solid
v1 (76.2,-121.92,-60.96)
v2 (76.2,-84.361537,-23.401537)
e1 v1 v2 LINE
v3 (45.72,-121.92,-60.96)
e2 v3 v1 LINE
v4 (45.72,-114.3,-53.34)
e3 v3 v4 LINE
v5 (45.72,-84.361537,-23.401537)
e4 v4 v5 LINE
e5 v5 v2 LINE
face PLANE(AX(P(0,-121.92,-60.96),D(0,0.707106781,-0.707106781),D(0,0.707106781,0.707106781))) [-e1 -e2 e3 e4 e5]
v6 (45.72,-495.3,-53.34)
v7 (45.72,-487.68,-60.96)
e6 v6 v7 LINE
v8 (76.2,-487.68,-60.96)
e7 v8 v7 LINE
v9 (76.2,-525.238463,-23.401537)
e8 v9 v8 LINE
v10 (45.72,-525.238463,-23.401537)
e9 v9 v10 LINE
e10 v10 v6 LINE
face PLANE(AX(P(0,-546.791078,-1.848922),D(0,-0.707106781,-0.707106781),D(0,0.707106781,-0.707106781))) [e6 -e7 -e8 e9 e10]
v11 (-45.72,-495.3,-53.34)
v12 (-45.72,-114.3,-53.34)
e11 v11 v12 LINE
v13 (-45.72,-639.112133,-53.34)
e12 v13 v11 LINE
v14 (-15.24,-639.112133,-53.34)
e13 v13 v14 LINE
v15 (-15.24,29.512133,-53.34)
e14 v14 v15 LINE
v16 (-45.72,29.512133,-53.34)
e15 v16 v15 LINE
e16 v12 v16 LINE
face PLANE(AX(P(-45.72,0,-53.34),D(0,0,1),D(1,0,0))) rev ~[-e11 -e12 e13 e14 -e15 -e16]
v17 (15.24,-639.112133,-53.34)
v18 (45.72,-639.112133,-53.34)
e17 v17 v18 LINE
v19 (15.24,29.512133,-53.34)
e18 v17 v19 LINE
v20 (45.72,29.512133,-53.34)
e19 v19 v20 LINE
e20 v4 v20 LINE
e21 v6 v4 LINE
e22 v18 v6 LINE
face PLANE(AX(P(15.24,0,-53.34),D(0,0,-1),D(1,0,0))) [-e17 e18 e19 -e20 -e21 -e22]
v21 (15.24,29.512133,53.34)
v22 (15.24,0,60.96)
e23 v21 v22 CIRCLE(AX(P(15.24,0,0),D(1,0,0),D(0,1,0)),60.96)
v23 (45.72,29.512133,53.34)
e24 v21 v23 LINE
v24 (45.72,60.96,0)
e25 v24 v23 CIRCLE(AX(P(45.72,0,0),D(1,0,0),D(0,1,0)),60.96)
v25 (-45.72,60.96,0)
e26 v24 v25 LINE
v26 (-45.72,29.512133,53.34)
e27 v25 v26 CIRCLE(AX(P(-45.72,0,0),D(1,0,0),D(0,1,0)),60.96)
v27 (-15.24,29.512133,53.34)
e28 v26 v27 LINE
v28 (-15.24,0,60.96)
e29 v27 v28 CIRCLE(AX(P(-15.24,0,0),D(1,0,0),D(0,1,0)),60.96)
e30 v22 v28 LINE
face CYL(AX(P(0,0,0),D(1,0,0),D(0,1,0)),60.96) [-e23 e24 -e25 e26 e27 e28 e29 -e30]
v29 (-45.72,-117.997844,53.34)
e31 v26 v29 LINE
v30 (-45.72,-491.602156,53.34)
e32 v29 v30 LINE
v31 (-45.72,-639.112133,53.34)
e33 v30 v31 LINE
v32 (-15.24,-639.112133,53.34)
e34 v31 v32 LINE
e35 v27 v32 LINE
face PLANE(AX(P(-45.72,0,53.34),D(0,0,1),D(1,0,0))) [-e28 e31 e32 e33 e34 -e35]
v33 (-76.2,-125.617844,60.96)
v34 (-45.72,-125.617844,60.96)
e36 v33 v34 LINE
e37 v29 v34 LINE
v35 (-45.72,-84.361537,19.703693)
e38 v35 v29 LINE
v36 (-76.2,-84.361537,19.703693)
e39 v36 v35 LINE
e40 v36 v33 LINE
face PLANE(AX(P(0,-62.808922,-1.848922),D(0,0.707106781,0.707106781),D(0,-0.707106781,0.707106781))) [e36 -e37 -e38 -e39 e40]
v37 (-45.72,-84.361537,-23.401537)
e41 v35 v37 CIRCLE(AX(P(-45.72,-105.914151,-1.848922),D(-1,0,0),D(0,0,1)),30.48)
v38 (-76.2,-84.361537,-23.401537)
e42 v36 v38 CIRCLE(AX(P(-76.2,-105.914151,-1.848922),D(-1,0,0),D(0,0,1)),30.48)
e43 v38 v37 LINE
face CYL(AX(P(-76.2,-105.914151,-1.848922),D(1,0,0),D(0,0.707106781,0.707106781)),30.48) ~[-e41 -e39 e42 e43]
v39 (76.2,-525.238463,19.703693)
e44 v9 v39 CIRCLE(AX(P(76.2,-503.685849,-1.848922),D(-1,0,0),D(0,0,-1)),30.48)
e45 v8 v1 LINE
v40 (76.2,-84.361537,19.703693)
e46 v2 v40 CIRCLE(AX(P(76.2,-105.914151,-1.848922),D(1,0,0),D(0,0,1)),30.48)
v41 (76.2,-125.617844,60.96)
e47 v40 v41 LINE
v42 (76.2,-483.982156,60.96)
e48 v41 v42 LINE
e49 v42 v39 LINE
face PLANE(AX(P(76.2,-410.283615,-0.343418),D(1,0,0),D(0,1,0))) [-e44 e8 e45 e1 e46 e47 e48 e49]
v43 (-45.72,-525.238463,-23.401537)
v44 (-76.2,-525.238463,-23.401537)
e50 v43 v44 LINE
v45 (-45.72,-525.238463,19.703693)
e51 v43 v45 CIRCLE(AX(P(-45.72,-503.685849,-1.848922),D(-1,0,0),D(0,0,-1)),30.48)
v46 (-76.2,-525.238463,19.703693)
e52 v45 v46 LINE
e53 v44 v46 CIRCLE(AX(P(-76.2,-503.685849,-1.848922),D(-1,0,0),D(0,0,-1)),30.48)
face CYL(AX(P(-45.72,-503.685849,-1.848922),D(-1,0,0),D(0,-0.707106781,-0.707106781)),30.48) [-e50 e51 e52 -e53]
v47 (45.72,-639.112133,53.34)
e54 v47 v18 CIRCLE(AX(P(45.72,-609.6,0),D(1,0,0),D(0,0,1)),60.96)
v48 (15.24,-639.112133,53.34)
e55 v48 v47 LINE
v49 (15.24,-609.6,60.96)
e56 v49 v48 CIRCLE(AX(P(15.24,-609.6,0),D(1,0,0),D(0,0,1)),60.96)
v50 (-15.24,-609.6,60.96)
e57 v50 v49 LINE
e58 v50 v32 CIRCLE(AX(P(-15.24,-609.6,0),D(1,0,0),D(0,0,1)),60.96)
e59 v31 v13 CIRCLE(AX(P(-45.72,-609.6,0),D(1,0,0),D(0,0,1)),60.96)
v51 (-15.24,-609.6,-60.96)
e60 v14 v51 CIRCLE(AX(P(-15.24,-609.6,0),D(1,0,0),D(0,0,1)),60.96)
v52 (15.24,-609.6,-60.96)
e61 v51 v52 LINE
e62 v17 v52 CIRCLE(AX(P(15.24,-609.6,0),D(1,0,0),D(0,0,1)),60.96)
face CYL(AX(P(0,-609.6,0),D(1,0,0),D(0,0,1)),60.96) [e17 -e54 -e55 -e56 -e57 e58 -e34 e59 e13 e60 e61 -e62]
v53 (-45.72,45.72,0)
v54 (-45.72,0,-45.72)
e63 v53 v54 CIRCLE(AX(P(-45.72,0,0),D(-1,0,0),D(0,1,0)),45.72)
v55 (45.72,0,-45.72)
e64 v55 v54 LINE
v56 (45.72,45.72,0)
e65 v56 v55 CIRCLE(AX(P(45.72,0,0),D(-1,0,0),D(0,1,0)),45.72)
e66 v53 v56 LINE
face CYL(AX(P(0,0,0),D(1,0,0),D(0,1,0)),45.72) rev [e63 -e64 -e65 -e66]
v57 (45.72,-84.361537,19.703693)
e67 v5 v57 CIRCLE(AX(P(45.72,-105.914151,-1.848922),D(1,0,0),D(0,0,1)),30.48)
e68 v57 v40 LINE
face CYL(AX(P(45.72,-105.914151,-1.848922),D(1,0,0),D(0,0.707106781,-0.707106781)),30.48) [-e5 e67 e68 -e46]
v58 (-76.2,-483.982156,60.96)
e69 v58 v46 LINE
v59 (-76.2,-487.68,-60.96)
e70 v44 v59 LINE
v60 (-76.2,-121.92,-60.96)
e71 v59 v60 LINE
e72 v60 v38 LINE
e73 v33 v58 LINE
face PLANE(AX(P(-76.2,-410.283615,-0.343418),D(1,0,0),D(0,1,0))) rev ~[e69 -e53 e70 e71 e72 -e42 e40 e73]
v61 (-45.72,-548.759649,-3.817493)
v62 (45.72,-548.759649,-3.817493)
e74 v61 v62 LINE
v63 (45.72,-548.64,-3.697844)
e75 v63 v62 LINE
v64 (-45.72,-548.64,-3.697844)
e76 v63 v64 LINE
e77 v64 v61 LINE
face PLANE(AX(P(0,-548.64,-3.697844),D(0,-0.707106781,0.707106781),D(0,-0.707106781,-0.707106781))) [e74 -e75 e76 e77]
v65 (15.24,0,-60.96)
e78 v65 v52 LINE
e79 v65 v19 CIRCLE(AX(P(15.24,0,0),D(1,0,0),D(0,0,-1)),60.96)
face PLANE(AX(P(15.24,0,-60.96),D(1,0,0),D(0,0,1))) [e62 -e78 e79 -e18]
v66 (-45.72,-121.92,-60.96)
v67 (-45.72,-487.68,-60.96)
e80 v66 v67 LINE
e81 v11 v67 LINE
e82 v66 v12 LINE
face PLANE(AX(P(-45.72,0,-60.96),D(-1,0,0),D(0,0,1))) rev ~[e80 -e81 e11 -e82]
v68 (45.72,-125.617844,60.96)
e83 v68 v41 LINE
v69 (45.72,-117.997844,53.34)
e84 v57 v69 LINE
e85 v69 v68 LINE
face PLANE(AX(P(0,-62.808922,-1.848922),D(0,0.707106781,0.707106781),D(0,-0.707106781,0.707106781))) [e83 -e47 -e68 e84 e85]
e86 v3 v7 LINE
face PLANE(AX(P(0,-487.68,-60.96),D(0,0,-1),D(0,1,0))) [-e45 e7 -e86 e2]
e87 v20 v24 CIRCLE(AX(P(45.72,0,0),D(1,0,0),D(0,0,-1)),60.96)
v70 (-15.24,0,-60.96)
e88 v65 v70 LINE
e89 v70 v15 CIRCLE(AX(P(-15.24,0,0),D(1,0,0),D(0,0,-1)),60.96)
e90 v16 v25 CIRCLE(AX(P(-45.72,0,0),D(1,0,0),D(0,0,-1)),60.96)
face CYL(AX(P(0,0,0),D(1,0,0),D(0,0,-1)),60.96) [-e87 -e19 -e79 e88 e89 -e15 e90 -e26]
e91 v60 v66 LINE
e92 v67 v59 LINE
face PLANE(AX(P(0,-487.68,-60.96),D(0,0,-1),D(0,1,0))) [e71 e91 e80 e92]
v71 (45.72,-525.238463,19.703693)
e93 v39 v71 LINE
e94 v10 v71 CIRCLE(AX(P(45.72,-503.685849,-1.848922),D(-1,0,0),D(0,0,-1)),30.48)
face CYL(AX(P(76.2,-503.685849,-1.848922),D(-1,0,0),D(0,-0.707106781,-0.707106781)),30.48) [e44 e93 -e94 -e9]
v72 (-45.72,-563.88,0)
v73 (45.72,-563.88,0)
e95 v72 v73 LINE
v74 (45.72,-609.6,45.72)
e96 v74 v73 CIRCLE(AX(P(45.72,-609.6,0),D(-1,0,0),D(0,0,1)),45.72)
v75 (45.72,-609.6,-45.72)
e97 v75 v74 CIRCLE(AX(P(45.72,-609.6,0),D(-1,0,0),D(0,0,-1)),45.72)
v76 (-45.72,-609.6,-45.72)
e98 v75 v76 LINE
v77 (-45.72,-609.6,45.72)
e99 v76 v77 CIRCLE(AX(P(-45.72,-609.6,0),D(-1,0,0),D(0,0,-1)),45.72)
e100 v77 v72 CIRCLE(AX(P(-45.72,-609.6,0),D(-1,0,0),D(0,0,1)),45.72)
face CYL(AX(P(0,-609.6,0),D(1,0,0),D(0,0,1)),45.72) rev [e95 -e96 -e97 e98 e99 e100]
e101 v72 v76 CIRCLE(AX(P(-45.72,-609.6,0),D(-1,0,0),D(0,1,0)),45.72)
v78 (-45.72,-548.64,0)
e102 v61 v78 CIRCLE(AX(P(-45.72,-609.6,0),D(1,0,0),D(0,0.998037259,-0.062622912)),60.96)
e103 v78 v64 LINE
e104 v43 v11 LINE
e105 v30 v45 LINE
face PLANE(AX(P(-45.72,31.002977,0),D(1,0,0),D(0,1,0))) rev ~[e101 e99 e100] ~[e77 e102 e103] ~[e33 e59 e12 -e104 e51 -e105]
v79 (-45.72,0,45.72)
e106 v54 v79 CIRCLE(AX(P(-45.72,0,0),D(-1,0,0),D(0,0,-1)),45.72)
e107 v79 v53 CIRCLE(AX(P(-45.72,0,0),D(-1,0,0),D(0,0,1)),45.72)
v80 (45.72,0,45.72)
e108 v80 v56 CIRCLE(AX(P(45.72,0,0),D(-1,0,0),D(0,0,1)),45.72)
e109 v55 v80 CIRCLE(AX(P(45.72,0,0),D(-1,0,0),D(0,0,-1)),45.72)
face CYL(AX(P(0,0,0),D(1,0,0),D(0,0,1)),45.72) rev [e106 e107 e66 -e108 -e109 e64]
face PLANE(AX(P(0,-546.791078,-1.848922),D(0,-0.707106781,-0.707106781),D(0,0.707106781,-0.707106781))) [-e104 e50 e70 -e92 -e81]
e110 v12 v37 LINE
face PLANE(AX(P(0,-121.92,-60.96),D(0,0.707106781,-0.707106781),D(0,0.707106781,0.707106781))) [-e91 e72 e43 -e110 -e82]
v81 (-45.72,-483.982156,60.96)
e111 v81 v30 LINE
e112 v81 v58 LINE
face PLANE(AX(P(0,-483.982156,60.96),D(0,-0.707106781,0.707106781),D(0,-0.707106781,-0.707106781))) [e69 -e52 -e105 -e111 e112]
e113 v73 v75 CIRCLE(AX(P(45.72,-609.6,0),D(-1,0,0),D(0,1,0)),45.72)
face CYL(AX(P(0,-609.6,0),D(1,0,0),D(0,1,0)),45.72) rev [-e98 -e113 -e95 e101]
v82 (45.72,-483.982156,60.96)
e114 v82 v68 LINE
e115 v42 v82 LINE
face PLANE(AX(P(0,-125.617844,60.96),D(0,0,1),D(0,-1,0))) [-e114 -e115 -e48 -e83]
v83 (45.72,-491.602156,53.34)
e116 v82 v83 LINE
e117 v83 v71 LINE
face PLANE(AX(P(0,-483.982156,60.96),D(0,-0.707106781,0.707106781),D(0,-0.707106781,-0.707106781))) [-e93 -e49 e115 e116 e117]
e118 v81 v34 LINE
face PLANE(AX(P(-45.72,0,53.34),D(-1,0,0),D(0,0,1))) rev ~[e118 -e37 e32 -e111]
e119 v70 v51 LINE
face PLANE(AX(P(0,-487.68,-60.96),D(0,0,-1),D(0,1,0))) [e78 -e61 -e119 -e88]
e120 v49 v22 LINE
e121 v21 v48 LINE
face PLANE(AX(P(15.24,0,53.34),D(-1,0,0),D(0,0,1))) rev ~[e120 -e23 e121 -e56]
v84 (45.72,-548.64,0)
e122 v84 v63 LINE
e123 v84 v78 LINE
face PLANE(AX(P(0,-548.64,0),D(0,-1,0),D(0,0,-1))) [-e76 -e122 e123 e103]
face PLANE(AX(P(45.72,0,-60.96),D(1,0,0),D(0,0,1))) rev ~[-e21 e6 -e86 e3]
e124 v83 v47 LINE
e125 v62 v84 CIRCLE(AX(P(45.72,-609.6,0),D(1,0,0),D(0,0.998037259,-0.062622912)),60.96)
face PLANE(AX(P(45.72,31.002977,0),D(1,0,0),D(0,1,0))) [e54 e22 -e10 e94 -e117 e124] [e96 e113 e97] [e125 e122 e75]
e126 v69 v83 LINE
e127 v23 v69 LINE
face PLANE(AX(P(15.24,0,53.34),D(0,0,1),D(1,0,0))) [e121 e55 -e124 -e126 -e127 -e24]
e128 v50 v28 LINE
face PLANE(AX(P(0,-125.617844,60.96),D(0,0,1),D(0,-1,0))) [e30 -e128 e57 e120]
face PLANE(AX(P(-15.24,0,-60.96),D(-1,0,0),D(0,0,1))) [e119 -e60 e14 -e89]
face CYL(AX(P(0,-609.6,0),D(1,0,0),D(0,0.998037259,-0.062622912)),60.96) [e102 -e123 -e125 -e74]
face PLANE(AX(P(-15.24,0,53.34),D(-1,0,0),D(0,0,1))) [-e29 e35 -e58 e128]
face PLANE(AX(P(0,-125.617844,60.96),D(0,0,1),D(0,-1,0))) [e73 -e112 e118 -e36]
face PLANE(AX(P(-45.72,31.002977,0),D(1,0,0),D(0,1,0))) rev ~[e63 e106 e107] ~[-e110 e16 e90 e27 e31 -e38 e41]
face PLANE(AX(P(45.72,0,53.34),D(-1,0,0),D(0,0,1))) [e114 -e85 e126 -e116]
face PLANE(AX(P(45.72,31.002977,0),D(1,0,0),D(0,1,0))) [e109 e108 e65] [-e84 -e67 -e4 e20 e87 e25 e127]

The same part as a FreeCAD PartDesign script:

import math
import FreeCAD as App
import Part
import Sketcher
from FreeCAD import Vector
Q = App.Units.Quantity


def edges_at(feature, points):
    """Names of the edges that pass closest to the given points."""
    edges = feature.Shape.Edges
    near = lambda p: min(range(len(edges)), key=lambda i: edges[i].distToShape(Part.Vertex(*p))[0])
    return sorted({f"Edge{near(p) + 1}" for p in points})


def add_polygon(sketch, points):
    """Adds a closed chain of lines whose ends are joined by coincident constraints."""
    first, n = sketch.GeometryCount, len(points)
    for a, b in zip(points, points[1:] + points[:1]):
        sketch.addGeometry(Part.LineSegment(App.Vector(*a, 0), App.Vector(*b, 0)), False)
    for i in range(n):
        sketch.addConstraint(Sketcher.Constraint("Coincident", first + i, 2, first + (i + 1) % n, 1))

doc = App.newDocument("Part")
body = doc.addObject("PartDesign::Body", "Body")

# Sketch on YZ plane
sketch1 = doc.addObject("Sketcher::SketchObject", "Sketch")
body.addObject(sketch1)
sketch1.AttachmentSupport = (doc.YZ_Plane, [""])
sketch1.MapMode = "FlatFace"
sketch1.addGeometry(Part.LineSegment(Vector(0, 60.96, 0), Vector(-609.6, 60.96, 0)), False)
sketch1.addGeometry(Part.ArcOfCircle(Part.Circle(Vector(-609.6, 0, 0), Vector(0, 0, 1), 60.96), math.radians(90), math.radians(270)), False)
sketch1.addGeometry(Part.LineSegment(Vector(-609.6, -60.96, 0), Vector(0, -60.96, 0)), False)
sketch1.addGeometry(Part.ArcOfCircle(Part.Circle(Vector(0, 0, 0), Vector(0, 0, 1), 60.96), math.radians(-90), math.radians(0)), False)
sketch1.addGeometry(Part.ArcOfCircle(Part.Circle(Vector(0, 0, 0), Vector(0, 0, 1), 60.96), math.radians(0), math.radians(90)), False)
sketch1.addGeometry(Part.ArcOfCircle(Part.Circle(Vector(-609.6, 0, 0), Vector(0, 0, 1), 45.72), math.radians(0), math.radians(90)), False)
sketch1.addGeometry(Part.ArcOfCircle(Part.Circle(Vector(-609.6, 0, 0), Vector(0, 0, 1), 45.72), math.radians(-90), math.radians(0)), False)
sketch1.addGeometry(Part.ArcOfCircle(Part.Circle(Vector(-609.6, 0, 0), Vector(0, 0, 1), 45.72), math.radians(90), math.radians(270)), False)
sketch1.addGeometry(Part.LineSegment(Vector(-548.64, -3.697844, 0), Vector(-548.759649, -3.817493, 0)), False)
sketch1.addGeometry(Part.ArcOfCircle(Part.Circle(Vector(-609.6, 0, 0), Vector(0, 0, 1), 60.96), math.radians(-3.590378), math.radians(0)), False)
sketch1.addGeometry(Part.LineSegment(Vector(-548.64, 0, 0), Vector(-548.64, -3.697844, 0)), False)
sketch1.addGeometry(Part.ArcOfCircle(Part.Circle(Vector(0, 0, 0), Vector(0, 0, 1), 45.72), math.radians(0), math.radians(90)), False)
sketch1.addGeometry(Part.ArcOfCircle(Part.Circle(Vector(0, 0, 0), Vector(0, 0, 1), 45.72), math.radians(-90), math.radians(0)), False)
sketch1.addGeometry(Part.ArcOfCircle(Part.Circle(Vector(0, 0, 0), Vector(0, 0, 1), 45.72), math.radians(90), math.radians(270)), False)
sketch1.addConstraint(Sketcher.Constraint("Tangent", 0, 2, 1, 1))
sketch1.addConstraint(Sketcher.Constraint("Tangent", 1, 2, 2, 1))
sketch1.addConstraint(Sketcher.Constraint("Tangent", 2, 2, 3, 1))
sketch1.addConstraint(Sketcher.Constraint("Tangent", 3, 2, 4, 1))
sketch1.addConstraint(Sketcher.Constraint("Tangent", 4, 2, 0, 1))
sketch1.addConstraint(Sketcher.Constraint("Tangent", 5, 1, 6, 2))
sketch1.addConstraint(Sketcher.Constraint("Tangent", 6, 1, 7, 2))
sketch1.addConstraint(Sketcher.Constraint("Tangent", 7, 1, 5, 2))
sketch1.addConstraint(Sketcher.Constraint("Coincident", 8, 2, 9, 1))
sketch1.addConstraint(Sketcher.Constraint("Tangent", 9, 2, 10, 1))
sketch1.addConstraint(Sketcher.Constraint("Coincident", 10, 2, 8, 1))
sketch1.addConstraint(Sketcher.Constraint("Tangent", 11, 1, 12, 2))
sketch1.addConstraint(Sketcher.Constraint("Tangent", 12, 1, 13, 2))
sketch1.addConstraint(Sketcher.Constraint("Tangent", 13, 1, 11, 2))
sketch1.addConstraint(Sketcher.Constraint("Horizontal", 0))
sketch1.addConstraint(Sketcher.Constraint("Horizontal", 2))
sketch1.addConstraint(Sketcher.Constraint("Vertical", 10))
sketch1.addConstraint(Sketcher.Constraint("Coincident", 3, 3, -1, 1))
sketch1.addConstraint(Sketcher.Constraint("Coincident", 11, 3, -1, 1))
sketch1.addConstraint(Sketcher.Constraint("Coincident", 5, 3, 1, 3))
sketch1.addConstraint(Sketcher.Constraint("Coincident", 9, 3, 1, 3))
sketch1.addConstraint(Sketcher.Constraint("Equal", 1, 3))
sketch1.addConstraint(Sketcher.Constraint("Equal", 4, 9))
sketch1.addConstraint(Sketcher.Constraint("Equal", 7, 11))
sketch1.addConstraint(Sketcher.Constraint("PointOnObject", 3, 2, -1))
sketch1.addConstraint(Sketcher.Constraint("PointOnObject", 5, 1, -1))
sketch1.addConstraint(Sketcher.Constraint("PointOnObject", 11, 1, -1))
sketch1.addConstraint(Sketcher.Constraint("PointOnObject", 12, 1, -2))
sketch1.addConstraint(Sketcher.Constraint("PointOnObject", 13, 1, -2))
sketch1.addConstraint(Sketcher.Constraint("Vertical", 1, 2, 6, 1))
sketch1.addConstraint(Sketcher.Constraint("Vertical", 6, 1, 7, 1))
sketch1.addConstraint(Sketcher.Constraint("Radius", 1, Q("2.4 in")))
sketch1.addConstraint(Sketcher.Constraint("Radius", 5, Q("1.8 in")))
sketch1.addConstraint(Sketcher.Constraint("DistanceX", 0, 2, 0, 1, Q("24 in")))
sketch1.addConstraint(Sketcher.Constraint("Angle", 8, Q("-135 deg")))
sketch1.addConstraint(Sketcher.Constraint("Distance", 8, 0.169209))
pad1 = doc.addObject("PartDesign::Pad", "Pad")
body.addObject(pad1)
pad1.Profile = sketch1
pad1.Length = Q("3.6 in")
pad1.Midplane = True

# Sketch on YZ plane
sketch2 = doc.addObject("Sketcher::SketchObject", "Sketch001")
body.addObject(sketch2)
sketch2.AttachmentSupport = (doc.YZ_Plane, [""])
sketch2.MapMode = "FlatFace"
add_polygon(sketch2, [(-487.68, -60.96), (-121.92, -60.96), (-62.808922, -1.848922), (-125.617844, 60.96), (-483.982156, 60.96), (-546.791078, -1.848922)])  # lines 0-5
sketch2.addConstraint(Sketcher.Constraint("Horizontal", 0))
sketch2.addConstraint(Sketcher.Constraint("Horizontal", 3))
sketch2.addConstraint(Sketcher.Constraint("Perpendicular", 1, 2))
sketch2.addConstraint(Sketcher.Constraint("Perpendicular", 2, 4))
sketch2.addConstraint(Sketcher.Constraint("Perpendicular", 4, 5))
sketch2.addConstraint(Sketcher.Constraint("Horizontal", 1, 2, 4, 2))
sketch2.addConstraint(Sketcher.Constraint("Equal", 2, 4))
sketch2.addConstraint(Sketcher.Constraint("DistanceX", 0, 1, 0, 2, Q("14.4 in")))
sketch2.addConstraint(Sketcher.Constraint("DistanceX", 0, 2, -1, 1, Q("4.8 in")))
sketch2.addConstraint(Sketcher.Constraint("DistanceY", 0, 2, -1, 1, Q("2.4 in")))
sketch2.addConstraint(Sketcher.Constraint("DistanceY", -1, 1, 2, 2, Q("2.4 in")))
sketch2.addConstraint(Sketcher.Constraint("DistanceX", 3, 2, 3, 1, 358.364312))
pad2 = doc.addObject("PartDesign::Pad", "Pad001")
body.addObject(pad2)
pad2.Profile = sketch2
pad2.Length = Q("6 in")
pad2.Midplane = True

# Sketch on XZ plane
sketch3 = doc.addObject("Sketcher::SketchObject", "Sketch002")
body.addObject(sketch3)
sketch3.AttachmentSupport = (doc.XZ_Plane, [""])
sketch3.MapMode = "FlatFace"
add_polygon(sketch3, [(-45.72, 60.96), (-45.72, 53.34), (-15.24, 53.34), (-15.24, 60.96)])  # lines 0-3
add_polygon(sketch3, [(15.24, 60.96), (15.24, 53.34), (45.72, 53.34), (45.72, 60.96)])  # lines 4-7
add_polygon(sketch3, [(-45.72, -53.34), (-45.72, -60.96), (-15.24, -60.96), (-15.24, -53.34)])  # lines 8-11
add_polygon(sketch3, [(15.24, -53.34), (15.24, -60.96), (45.72, -60.96), (45.72, -53.34)])  # lines 12-15
sketch3.addConstraint(Sketcher.Constraint("Vertical", 0))
sketch3.addConstraint(Sketcher.Constraint("Horizontal", 1))
sketch3.addConstraint(Sketcher.Constraint("Vertical", 2))
sketch3.addConstraint(Sketcher.Constraint("Horizontal", 3))
sketch3.addConstraint(Sketcher.Constraint("Vertical", 4))
sketch3.addConstraint(Sketcher.Constraint("Horizontal", 5))
sketch3.addConstraint(Sketcher.Constraint("Vertical", 6))
sketch3.addConstraint(Sketcher.Constraint("Horizontal", 7))
sketch3.addConstraint(Sketcher.Constraint("Vertical", 8))
sketch3.addConstraint(Sketcher.Constraint("Horizontal", 9))
sketch3.addConstraint(Sketcher.Constraint("Vertical", 10))
sketch3.addConstraint(Sketcher.Constraint("Horizontal", 11))
sketch3.addConstraint(Sketcher.Constraint("Vertical", 12))
sketch3.addConstraint(Sketcher.Constraint("Horizontal", 13))
sketch3.addConstraint(Sketcher.Constraint("Vertical", 14))
sketch3.addConstraint(Sketcher.Constraint("Horizontal", 15))
sketch3.addConstraint(Sketcher.Constraint("Symmetric", 6, 2, 8, 2, -1, 1))
sketch3.addConstraint(Sketcher.Constraint("Symmetric", 4, 2, 10, 2, -1, 1))
sketch3.addConstraint(Sketcher.Constraint("Symmetric", 2, 2, 12, 2, -1, 1))
sketch3.addConstraint(Sketcher.Constraint("Symmetric", 0, 2, 14, 2, -1, 1))
sketch3.addConstraint(Sketcher.Constraint("Symmetric", 1, 2, 4, 2, -2))
sketch3.addConstraint(Sketcher.Constraint("Symmetric", 3, 2, 6, 2, -2))
sketch3.addConstraint(Sketcher.Constraint("DistanceX", 1, 1, 1, 2, Q("1.2 in")))
sketch3.addConstraint(Sketcher.Constraint("DistanceY", 0, 2, 0, 1, Q("0.3 in")))
sketch3.addConstraint(Sketcher.Constraint("DistanceX", 0, 2, -1, 1, Q("1.8 in")))
sketch3.addConstraint(Sketcher.Constraint("DistanceY", -1, 1, 0, 2, Q("2.1 in")))
pocket1 = doc.addObject("PartDesign::Pocket", "Pocket")
body.addObject(pocket1)
pocket1.Profile = sketch3
pocket1.Length = Q("60 in")
pocket1.Midplane = True
doc.recompute()

fillet = doc.addObject("PartDesign::Fillet", "Fillet")
body.addObject(fillet)
fillet.Base = (pocket1, edges_at(pocket1, [
    (60.96, -546.791, -1.849),
    (-60.96, -546.791, -1.849),
    (-60.96, -62.809, -1.849),
    (60.96, -62.809, -1.849),
]))
fillet.Radius = Q("1.2 in")

doc.recompute()
